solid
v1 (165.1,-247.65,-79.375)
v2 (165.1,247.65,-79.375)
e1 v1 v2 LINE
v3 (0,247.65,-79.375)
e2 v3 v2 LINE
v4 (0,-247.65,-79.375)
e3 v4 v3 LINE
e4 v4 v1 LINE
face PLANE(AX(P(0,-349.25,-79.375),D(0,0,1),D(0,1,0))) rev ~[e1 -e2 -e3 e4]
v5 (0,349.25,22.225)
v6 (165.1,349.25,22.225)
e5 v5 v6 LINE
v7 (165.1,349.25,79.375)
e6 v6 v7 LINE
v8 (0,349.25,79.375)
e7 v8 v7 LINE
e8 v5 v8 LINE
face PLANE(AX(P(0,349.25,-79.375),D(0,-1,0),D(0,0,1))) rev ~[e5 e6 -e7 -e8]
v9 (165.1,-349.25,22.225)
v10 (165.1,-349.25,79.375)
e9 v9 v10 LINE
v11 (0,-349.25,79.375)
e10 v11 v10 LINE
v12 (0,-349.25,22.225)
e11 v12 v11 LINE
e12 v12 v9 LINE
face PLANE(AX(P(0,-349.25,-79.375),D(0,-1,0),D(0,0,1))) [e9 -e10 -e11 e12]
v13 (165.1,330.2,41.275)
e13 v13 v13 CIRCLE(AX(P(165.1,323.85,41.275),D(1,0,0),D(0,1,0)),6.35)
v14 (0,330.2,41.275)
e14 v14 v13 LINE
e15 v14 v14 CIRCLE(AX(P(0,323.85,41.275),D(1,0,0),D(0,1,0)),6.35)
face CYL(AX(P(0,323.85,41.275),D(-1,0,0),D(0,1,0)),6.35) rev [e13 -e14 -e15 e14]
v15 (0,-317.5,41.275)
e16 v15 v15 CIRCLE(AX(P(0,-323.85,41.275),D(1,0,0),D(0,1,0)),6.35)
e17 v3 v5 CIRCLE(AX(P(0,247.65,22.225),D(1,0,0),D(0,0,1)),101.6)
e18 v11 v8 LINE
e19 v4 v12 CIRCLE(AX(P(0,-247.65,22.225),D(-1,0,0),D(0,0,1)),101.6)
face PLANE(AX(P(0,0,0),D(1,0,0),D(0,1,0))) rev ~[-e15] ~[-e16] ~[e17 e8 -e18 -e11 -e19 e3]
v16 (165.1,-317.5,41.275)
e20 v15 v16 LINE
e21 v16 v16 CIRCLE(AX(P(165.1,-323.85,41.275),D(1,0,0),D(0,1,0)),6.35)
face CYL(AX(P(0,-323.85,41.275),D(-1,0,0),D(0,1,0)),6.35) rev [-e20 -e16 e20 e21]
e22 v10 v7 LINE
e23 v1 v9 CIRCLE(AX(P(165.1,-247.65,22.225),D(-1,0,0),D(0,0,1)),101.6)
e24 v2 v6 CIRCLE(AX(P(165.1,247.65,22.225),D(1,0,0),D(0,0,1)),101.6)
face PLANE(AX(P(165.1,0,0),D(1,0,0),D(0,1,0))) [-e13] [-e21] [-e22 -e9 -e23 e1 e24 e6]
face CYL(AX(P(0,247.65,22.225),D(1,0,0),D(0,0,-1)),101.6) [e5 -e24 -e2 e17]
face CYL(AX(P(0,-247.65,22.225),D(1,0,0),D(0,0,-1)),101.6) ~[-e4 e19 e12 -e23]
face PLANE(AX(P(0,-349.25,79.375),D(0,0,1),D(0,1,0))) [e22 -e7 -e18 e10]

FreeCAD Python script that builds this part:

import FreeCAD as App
import Part
import Sketcher

V = App.Vector
Q = App.Units.Quantity


def edges_at(feature, points):
    """Names of the edges that pass closest to the given points."""
    edges = feature.Shape.Edges
    near = lambda p: min(range(len(edges)), key=lambda i: edges[i].distToShape(Part.Vertex(*p))[0])
    return sorted({f"Edge{near(p) + 1}" for p in points})


def add_polygon(sketch, points):
    """Adds a closed chain of lines whose ends are joined by coincident constraints."""
    first, n = sketch.GeometryCount, len(points)
    for a, b in zip(points, points[1:] + points[:1]):
        sketch.addGeometry(Part.LineSegment(App.Vector(*a, 0), App.Vector(*b, 0)), False)
    for i in range(n):
        sketch.addConstraint(Sketcher.Constraint("Coincident", first + i, 2, first + (i + 1) % n, 1))

doc = App.newDocument("Part")
body = doc.addObject("PartDesign::Body", "Body")

# Sketch on YZ plane
sketch1 = body.newObject("Sketcher::SketchObject", "Sketch")
sketch1.AttachmentSupport = (doc.getObject("YZ_Plane"), [""])
sketch1.MapMode = "FlatFace"
add_polygon(sketch1, [(-349.25, 79.375), (-349.25, -79.375), (349.25, -79.375), (349.25, 79.375)])  # lines 0-3
sketch1.addGeometry(Part.Circle(V(-323.85, 41.275, 0), V(0, 0, 1), 6.35), False)  # 4
sketch1.addGeometry(Part.Circle(V(323.85, 41.275, 0), V(0, 0, 1), 6.35), False)  # 5
sketch1.addConstraint([
    Sketcher.Constraint("Vertical", 0),
    Sketcher.Constraint("Horizontal", 1),
    Sketcher.Constraint("Vertical", 2),
    Sketcher.Constraint("Horizontal", 3),
    Sketcher.Constraint("Equal", 4, 5),
    Sketcher.Constraint("Symmetric", 0, 2, 2, 2, -1, 1),
    Sketcher.Constraint("Symmetric", 4, 3, 5, 3, -2),
    Sketcher.Constraint("Diameter", 4, Q("0.5 in")),
    Sketcher.Constraint("DistanceX", 1, 1, 1, 2, Q("27.5 in")),
    Sketcher.Constraint("DistanceX", 0, 2, 4, 3, Q("1 in")),
    Sketcher.Constraint("DistanceY", 0, 2, 0, 1, Q("6.25 in")),
    Sketcher.Constraint("DistanceY", 5, 3, 2, 2, Q("1.5 in")),
])
pad1 = body.newObject("PartDesign::Pad", "Pad")
pad1.Profile = sketch1
pad1.Length = Q("6.5 in")
doc.recompute()

fillet = body.newObject("PartDesign::Fillet", "Fillet")
fillet.Base = (pad1, edges_at(pad1, [(82.55, 349.25, -79.375)]))
fillet.Radius = Q("4 in")
doc.recompute()

fillet2 = body.newObject("PartDesign::Fillet", "Fillet001")
fillet2.Base = (fillet, edges_at(fillet, [(82.55, -349.25, -79.375)]))
fillet2.Radius = Q("4 in")

doc.recompute()
